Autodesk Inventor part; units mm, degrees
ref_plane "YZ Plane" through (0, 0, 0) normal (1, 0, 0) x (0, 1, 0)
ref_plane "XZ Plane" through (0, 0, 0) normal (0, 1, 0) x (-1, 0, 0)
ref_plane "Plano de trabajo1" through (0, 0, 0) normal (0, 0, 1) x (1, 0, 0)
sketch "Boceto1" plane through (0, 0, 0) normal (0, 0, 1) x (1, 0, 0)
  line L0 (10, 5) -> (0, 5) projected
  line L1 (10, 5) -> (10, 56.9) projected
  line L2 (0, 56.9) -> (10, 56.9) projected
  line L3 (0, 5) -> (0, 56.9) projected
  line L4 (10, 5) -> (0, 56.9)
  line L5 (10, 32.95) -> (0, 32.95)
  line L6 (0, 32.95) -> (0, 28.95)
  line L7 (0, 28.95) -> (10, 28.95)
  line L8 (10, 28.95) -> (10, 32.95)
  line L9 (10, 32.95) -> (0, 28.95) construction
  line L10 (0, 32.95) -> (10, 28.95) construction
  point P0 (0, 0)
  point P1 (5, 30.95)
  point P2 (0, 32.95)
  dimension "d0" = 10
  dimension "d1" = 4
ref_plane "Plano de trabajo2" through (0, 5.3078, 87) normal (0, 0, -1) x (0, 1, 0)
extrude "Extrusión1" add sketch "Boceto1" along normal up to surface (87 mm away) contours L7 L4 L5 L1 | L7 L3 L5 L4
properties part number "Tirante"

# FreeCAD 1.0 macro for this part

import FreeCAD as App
import Part
import Sketcher

V = App.Vector
Q = App.Units.Quantity

doc = App.newDocument("Part")
params = doc.addObject("Spreadsheet::Sheet", "Params")
for row, (alias, value) in enumerate([
    ("sketch1_width", "10 mm"),
    ("sketch1_height", "4 mm"),
    ("pad1_length", "87 mm"),
], start=1):
    params.set(f"A{row}", alias)
    params.set(f"B{row}", "=" + value)
    params.setAlias(f"B{row}", alias)

body = doc.addObject("PartDesign::Body", "Body")

sketch1 = body.newObject("Sketcher::SketchObject", "Sketch")
sketch1.AttachmentSupport = (doc.getObject("XY_Plane"), [""])
sketch1.MapMode = "FlatFace"
sketch1.addGeometry(Part.LineSegment(V(10, 28.95, 0), V(10, 32.95, 0)), False)
sketch1.addGeometry(Part.LineSegment(V(10, 32.95, 0), V(0, 32.95, 0)), False)
sketch1.addGeometry(Part.LineSegment(V(0, 32.95, 0), V(0, 28.95, 0)), False)
sketch1.addGeometry(Part.LineSegment(V(0, 28.95, 0), V(10, 28.95, 0)), False)
sketch1.addConstraint(Sketcher.Constraint("Coincident", 0, 2, 1, 1))
sketch1.addConstraint(Sketcher.Constraint("Coincident", 1, 2, 2, 1))
sketch1.addConstraint(Sketcher.Constraint("Coincident", 2, 2, 3, 1))
sketch1.addConstraint(Sketcher.Constraint("Coincident", 3, 2, 0, 1))
sketch1.addConstraint(Sketcher.Constraint("Vertical", 0))
sketch1.addConstraint(Sketcher.Constraint("Horizontal", 1))
sketch1.addConstraint(Sketcher.Constraint("Vertical", 2))
sketch1.addConstraint(Sketcher.Constraint("Horizontal", 3))
sketch1.addConstraint(Sketcher.Constraint("PointOnObject", 1, 2, -2))
sketch1.addConstraint(Sketcher.Constraint("DistanceX", 1, 2, 1, 1, Q("10 mm")))
sketch1.addConstraint(Sketcher.Constraint("DistanceY", 0, 1, 0, 2, Q("4 mm")))
sketch1.addConstraint(Sketcher.Constraint("DistanceY", -1, 1, 0, 2, Q("32.95 mm")))
sketch1.setExpression("Constraints[9]", "Params.sketch1_width")
sketch1.setExpression("Constraints[10]", "Params.sketch1_height")
pad1 = body.newObject("PartDesign::Pad", "Pad")
pad1.Profile = sketch1
pad1.setExpression("Length", "Params.pad1_length")

doc.recompute()
